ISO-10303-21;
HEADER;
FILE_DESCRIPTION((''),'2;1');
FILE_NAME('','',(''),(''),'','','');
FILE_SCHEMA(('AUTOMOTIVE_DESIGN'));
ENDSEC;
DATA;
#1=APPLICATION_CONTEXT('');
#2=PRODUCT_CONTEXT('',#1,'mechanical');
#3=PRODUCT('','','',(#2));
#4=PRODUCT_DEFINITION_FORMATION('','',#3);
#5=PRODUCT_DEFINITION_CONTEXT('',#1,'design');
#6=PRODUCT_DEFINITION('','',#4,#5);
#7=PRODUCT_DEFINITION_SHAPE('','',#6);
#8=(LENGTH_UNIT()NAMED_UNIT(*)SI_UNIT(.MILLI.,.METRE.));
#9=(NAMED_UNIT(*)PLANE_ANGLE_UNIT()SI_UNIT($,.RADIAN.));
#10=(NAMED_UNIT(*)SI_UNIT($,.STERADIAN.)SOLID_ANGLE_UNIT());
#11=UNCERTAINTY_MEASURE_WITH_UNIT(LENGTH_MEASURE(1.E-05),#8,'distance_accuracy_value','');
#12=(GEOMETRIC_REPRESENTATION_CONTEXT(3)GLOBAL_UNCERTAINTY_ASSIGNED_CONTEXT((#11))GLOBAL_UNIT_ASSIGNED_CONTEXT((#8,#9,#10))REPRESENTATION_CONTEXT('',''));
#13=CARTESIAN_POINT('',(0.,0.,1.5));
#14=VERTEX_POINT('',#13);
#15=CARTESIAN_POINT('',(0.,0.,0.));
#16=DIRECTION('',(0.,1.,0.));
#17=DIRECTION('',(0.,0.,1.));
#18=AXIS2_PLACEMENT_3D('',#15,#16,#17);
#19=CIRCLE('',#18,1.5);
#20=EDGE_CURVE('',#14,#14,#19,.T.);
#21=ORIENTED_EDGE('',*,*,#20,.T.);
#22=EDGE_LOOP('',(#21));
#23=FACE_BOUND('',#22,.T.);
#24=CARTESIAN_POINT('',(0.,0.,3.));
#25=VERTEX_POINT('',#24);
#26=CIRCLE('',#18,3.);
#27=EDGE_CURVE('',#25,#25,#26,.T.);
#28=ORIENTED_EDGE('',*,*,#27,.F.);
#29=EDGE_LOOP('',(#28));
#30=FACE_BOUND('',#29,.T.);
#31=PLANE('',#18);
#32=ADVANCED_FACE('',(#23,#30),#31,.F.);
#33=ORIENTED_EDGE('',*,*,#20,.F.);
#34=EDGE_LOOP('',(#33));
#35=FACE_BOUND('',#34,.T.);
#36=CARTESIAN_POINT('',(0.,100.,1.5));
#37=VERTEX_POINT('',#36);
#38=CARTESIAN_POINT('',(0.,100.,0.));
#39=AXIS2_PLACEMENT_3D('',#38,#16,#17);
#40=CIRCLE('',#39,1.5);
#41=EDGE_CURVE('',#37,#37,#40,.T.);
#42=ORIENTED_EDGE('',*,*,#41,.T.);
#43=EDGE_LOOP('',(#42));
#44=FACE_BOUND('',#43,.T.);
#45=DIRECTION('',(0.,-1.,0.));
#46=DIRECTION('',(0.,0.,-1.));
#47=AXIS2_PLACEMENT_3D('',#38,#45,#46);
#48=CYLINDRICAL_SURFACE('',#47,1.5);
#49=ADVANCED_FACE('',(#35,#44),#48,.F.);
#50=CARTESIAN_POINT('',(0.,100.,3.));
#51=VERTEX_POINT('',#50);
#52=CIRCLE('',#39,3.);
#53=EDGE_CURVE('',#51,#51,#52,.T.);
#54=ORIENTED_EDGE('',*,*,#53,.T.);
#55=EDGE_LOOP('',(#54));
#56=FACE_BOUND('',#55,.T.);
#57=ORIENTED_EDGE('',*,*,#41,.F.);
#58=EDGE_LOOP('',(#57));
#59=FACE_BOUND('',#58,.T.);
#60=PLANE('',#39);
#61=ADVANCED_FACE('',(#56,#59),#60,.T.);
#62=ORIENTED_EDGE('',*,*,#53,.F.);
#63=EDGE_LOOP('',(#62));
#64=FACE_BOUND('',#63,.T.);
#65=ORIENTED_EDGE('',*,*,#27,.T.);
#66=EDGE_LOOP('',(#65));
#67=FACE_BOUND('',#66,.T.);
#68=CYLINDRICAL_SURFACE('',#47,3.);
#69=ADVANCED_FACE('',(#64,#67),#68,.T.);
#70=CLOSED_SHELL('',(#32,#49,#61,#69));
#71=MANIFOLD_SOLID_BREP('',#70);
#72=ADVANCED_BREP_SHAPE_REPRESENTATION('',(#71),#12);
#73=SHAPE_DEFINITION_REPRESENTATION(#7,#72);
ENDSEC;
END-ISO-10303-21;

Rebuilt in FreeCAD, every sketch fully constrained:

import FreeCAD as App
import Part
import Sketcher
Q = App.Units.Quantity

doc = App.newDocument("Part")
body = doc.addObject("PartDesign::Body", "Body")

# Sketch on XZ plane
sketch1 = doc.addObject("Sketcher::SketchObject", "Sketch")
body.addObject(sketch1)
sketch1.AttachmentSupport = (doc.XZ_Plane, [""])
sketch1.MapMode = "FlatFace"
sketch1.addGeometry([
    Part.Circle(App.Vector(0, 0, 0), App.Vector(0, 0, 1), 3),
    Part.Circle(App.Vector(0, 0, 0), App.Vector(0, 0, 1), 1.5),
], False)
sketch1.addConstraint([
    Sketcher.Constraint("Coincident", 0, 3, -1, 1),
    Sketcher.Constraint("Coincident", 1, 3, -1, 1),
    Sketcher.Constraint("Diameter", 0, Q("6 mm")),
    Sketcher.Constraint("Diameter", 1, Q("3 mm")),
])
pad1 = doc.addObject("PartDesign::Pad", "Pad")
body.addObject(pad1)
pad1.Profile = sketch1
pad1.Length = 100
pad1.Reversed = True

doc.recompute()
